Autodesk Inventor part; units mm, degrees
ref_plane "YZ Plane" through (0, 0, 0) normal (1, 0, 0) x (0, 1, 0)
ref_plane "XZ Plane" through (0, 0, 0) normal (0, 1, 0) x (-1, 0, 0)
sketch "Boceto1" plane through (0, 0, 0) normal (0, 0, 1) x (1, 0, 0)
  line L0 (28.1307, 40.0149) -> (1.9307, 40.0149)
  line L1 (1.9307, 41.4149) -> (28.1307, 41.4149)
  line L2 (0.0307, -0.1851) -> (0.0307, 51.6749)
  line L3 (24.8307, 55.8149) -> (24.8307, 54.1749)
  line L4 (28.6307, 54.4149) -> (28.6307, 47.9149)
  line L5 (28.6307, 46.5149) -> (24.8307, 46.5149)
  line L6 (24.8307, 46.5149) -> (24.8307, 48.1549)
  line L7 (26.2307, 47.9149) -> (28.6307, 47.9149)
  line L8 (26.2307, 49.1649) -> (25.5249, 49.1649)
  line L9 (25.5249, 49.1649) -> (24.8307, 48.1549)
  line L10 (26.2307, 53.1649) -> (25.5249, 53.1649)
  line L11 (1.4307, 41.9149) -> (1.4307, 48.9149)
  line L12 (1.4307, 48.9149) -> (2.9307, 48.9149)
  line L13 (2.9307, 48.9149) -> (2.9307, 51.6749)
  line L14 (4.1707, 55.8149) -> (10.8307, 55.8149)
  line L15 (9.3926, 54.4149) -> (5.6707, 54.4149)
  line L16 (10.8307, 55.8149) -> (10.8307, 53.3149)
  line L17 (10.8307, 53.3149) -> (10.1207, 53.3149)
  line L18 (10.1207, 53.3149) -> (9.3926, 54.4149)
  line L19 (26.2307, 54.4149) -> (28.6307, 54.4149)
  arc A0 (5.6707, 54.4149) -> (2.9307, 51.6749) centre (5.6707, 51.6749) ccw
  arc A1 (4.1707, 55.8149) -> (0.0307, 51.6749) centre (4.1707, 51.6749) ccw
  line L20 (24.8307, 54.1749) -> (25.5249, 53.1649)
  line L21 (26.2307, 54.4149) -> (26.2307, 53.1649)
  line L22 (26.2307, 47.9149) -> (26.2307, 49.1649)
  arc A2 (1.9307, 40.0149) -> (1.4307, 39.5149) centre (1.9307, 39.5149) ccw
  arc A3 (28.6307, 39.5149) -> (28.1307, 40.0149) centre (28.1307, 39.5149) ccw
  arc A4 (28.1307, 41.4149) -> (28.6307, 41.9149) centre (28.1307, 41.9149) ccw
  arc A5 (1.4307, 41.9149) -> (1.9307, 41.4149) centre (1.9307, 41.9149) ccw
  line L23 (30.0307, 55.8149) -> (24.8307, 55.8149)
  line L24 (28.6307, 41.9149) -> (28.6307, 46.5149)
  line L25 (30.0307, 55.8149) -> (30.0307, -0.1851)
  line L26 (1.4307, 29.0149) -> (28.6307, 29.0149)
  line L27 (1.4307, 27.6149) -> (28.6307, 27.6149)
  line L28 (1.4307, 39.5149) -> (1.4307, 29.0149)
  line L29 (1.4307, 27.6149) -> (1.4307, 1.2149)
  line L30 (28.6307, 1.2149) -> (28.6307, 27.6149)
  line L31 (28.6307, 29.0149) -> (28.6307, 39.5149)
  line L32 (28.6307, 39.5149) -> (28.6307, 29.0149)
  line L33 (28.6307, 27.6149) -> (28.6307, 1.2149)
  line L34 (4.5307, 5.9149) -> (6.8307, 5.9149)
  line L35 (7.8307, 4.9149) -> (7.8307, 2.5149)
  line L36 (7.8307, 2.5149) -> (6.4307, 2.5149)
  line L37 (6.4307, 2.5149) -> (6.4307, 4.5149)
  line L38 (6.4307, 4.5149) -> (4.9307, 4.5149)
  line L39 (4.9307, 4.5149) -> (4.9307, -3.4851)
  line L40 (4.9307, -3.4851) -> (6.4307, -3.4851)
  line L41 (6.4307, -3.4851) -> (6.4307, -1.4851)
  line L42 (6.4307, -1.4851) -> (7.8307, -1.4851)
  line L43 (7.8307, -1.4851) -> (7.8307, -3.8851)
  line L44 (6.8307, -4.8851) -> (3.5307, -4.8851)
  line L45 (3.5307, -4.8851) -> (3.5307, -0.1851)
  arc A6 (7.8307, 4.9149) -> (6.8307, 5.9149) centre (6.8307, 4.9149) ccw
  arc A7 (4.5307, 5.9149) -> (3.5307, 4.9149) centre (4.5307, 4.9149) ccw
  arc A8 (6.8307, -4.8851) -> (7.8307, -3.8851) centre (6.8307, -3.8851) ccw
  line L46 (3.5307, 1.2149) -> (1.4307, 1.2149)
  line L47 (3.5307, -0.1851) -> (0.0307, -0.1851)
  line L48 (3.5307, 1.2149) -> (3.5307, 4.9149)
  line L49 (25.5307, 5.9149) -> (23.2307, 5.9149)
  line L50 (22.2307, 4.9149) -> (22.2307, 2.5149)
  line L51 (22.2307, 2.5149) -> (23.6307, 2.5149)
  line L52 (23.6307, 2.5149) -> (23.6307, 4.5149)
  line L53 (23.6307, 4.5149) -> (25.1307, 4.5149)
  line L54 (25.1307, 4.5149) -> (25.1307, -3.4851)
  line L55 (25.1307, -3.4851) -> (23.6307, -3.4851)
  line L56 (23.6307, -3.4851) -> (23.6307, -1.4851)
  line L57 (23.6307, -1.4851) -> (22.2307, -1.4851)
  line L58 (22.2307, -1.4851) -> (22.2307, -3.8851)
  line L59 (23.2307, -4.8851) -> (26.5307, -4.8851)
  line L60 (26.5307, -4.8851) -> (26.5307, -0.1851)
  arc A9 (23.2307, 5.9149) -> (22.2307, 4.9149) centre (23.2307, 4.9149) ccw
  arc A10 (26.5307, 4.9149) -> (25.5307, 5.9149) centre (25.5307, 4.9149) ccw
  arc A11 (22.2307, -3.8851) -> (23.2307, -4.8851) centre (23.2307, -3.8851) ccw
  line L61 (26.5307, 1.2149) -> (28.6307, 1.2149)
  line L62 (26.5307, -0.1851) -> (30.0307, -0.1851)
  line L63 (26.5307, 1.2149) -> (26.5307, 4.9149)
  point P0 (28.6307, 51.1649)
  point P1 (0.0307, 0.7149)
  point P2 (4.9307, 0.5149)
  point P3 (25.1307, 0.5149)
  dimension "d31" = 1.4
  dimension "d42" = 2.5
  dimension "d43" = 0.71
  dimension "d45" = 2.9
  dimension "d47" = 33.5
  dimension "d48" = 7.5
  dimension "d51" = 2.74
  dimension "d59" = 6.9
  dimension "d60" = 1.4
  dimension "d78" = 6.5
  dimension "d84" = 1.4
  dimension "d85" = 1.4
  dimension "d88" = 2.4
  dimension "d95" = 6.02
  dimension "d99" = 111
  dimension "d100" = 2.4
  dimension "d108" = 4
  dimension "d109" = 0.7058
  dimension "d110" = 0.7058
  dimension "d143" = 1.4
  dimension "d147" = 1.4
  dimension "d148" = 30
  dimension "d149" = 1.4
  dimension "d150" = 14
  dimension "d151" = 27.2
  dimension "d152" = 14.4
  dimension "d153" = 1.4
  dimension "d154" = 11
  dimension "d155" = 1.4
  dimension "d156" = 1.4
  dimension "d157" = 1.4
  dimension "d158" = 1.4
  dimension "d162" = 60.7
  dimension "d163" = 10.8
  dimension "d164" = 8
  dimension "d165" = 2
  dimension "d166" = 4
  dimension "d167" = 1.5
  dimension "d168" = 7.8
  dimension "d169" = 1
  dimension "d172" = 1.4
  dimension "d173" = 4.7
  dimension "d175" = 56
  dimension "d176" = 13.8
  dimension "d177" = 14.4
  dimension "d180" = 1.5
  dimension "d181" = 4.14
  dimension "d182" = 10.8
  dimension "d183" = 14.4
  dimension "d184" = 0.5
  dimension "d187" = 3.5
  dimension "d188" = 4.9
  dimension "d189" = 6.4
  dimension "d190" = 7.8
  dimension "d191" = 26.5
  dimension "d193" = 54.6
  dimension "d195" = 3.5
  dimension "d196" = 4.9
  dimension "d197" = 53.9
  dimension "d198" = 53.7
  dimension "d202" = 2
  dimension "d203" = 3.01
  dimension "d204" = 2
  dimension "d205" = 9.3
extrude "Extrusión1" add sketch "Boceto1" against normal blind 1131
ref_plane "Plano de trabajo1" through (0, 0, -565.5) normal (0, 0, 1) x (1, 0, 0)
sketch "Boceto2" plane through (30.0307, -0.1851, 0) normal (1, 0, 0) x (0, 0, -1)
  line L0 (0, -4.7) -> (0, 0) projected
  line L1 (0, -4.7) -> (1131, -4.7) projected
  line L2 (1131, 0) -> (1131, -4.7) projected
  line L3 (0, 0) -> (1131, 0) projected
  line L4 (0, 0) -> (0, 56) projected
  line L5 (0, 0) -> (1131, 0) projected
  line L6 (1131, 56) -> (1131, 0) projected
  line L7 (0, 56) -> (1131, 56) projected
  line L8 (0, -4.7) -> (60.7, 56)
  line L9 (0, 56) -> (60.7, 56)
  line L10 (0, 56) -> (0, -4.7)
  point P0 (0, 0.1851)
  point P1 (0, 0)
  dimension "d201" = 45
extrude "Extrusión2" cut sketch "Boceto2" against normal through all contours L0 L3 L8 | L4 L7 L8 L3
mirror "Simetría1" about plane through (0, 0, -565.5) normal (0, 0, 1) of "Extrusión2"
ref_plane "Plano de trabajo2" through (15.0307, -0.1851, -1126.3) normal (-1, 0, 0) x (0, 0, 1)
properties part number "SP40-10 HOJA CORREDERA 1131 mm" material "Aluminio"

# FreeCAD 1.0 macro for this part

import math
import FreeCAD as App
import Part
import Sketcher

V = App.Vector
Q = App.Units.Quantity


def add_polygon(sketch, points):
    """Adds a closed chain of lines whose ends are joined by coincident constraints."""
    first, n = sketch.GeometryCount, len(points)
    for a, b in zip(points, points[1:] + points[:1]):
        sketch.addGeometry(Part.LineSegment(App.Vector(*a, 0), App.Vector(*b, 0)), False)
    for i in range(n):
        sketch.addConstraint(Sketcher.Constraint("Coincident", first + i, 2, first + (i + 1) % n, 1))

doc = App.newDocument("Part")
body = doc.addObject("PartDesign::Body", "Body")

sketch1 = body.newObject("Sketcher::SketchObject", "Sketch")
sketch1.AttachmentSupport = (doc.getObject("XY_Plane"), [""])
sketch1.MapMode = "FlatFace"
sketch1.addGeometry([
    Part.LineSegment(V(28.1, 41.4, 0), V(1.9, 41.4, 0)),
    Part.ArcOfCircle(Part.Circle(V(1.9, 41.9, 0), V(0, 0, 1), 0.5), math.radians(180), math.radians(270)),
    Part.LineSegment(V(1.4, 41.9, 0), V(1.4, 48.9, 0)),
    Part.LineSegment(V(1.4, 48.9, 0), V(2.9, 48.9, 0)),
    Part.LineSegment(V(2.9, 48.9, 0), V(2.9, 51.7, 0)),
    Part.ArcOfCircle(Part.Circle(V(5.7, 51.7, 0), V(0, 0, 1), 2.7), math.radians(90), math.radians(180)),
    Part.LineSegment(V(5.7, 54.4, 0), V(9.4, 54.4, 0)),
    Part.LineSegment(V(9.4, 54.4, 0), V(10.1, 53.3, 0)),
    Part.LineSegment(V(10.1, 53.3, 0), V(10.8, 53.3, 0)),
    Part.LineSegment(V(10.8, 53.3, 0), V(10.8, 55.8, 0)),
    Part.LineSegment(V(10.8, 55.8, 0), V(4.2, 55.8, 0)),
    Part.ArcOfCircle(Part.Circle(V(4.2, 51.7, 0), V(0, 0, 1), 4.1), math.radians(90), math.radians(180)),
    Part.LineSegment(V(0, 51.7, 0), V(0, -0.2, 0)),
    Part.LineSegment(V(0, -0.2, 0), V(3.5, -0.2, 0)),
    Part.LineSegment(V(3.5, -0.2, 0), V(3.5, -4.9, 0)),
    Part.LineSegment(V(3.5, -4.9, 0), V(6.8, -4.9, 0)),
    Part.ArcOfCircle(Part.Circle(V(6.8, -3.9, 0), V(0, 0, 1), 1), math.radians(-90), math.radians(0)),
    Part.LineSegment(V(7.8, -3.9, 0), V(7.8, -1.5, 0)),
    Part.LineSegment(V(7.8, -1.5, 0), V(6.4, -1.5, 0)),
    Part.LineSegment(V(6.4, -1.5, 0), V(6.4, -3.5, 0)),
    Part.LineSegment(V(6.4, -3.5, 0), V(4.9, -3.5, 0)),
    Part.LineSegment(V(4.9, -3.5, 0), V(4.9, 4.5, 0)),
    Part.LineSegment(V(4.9, 4.5, 0), V(6.4, 4.5, 0)),
    Part.LineSegment(V(6.4, 4.5, 0), V(6.4, 2.5, 0)),
    Part.LineSegment(V(6.4, 2.5, 0), V(7.8, 2.5, 0)),
    Part.LineSegment(V(7.8, 2.5, 0), V(7.8, 4.9, 0)),
    Part.ArcOfCircle(Part.Circle(V(6.8, 4.9, 0), V(0, 0, 1), 1), math.radians(0), math.radians(90)),
    Part.LineSegment(V(6.8, 5.9, 0), V(4.5, 5.9, 0)),
    Part.ArcOfCircle(Part.Circle(V(4.5, 4.9, 0), V(0, 0, 1), 1), math.radians(90), math.radians(180)),
    Part.LineSegment(V(3.5, 4.9, 0), V(3.5, 1.2, 0)),
    Part.LineSegment(V(3.5, 1.2, 0), V(1.4, 1.2, 0)),
    Part.LineSegment(V(1.4, 1.2, 0), V(1.4, 27.6, 0)),
    Part.LineSegment(V(1.4, 27.6, 0), V(28.6, 27.6, 0)),
    Part.LineSegment(V(28.6, 27.6, 0), V(28.6, 1.2, 0)),
    Part.LineSegment(V(28.6, 1.2, 0), V(26.5, 1.2, 0)),
    Part.LineSegment(V(26.5, 1.2, 0), V(26.5, 4.9, 0)),
    Part.ArcOfCircle(Part.Circle(V(25.5, 4.9, 0), V(0, 0, 1), 1), math.radians(0), math.radians(90)),
    Part.LineSegment(V(25.5, 5.9, 0), V(23.2, 5.9, 0)),
    Part.ArcOfCircle(Part.Circle(V(23.2, 4.9, 0), V(0, 0, 1), 1), math.radians(90), math.radians(180)),
    Part.LineSegment(V(22.2, 4.9, 0), V(22.2, 2.5, 0)),
    Part.LineSegment(V(22.2, 2.5, 0), V(23.6, 2.5, 0)),
    Part.LineSegment(V(23.6, 2.5, 0), V(23.6, 4.5, 0)),
    Part.LineSegment(V(23.6, 4.5, 0), V(25.1, 4.5, 0)),
    Part.LineSegment(V(25.1, 4.5, 0), V(25.1, -3.5, 0)),
    Part.LineSegment(V(25.1, -3.5, 0), V(23.6, -3.5, 0)),
    Part.LineSegment(V(23.6, -3.5, 0), V(23.6, -1.5, 0)),
    Part.LineSegment(V(23.6, -1.5, 0), V(22.2, -1.5, 0)),
    Part.LineSegment(V(22.2, -1.5, 0), V(22.2, -3.9, 0)),
    Part.ArcOfCircle(Part.Circle(V(23.2, -3.9, 0), V(0, 0, 1), 1), math.radians(180), math.radians(270)),
    Part.LineSegment(V(23.2, -4.9, 0), V(26.5, -4.9, 0)),
    Part.LineSegment(V(26.5, -4.9, 0), V(26.5, -0.2, 0)),
    Part.LineSegment(V(26.5, -0.2, 0), V(30, -0.2, 0)),
    Part.LineSegment(V(30, -0.2, 0), V(30, 55.8, 0)),
    Part.LineSegment(V(30, 55.8, 0), V(24.8, 55.8, 0)),
    Part.LineSegment(V(24.8, 55.8, 0), V(24.8, 54.2, 0)),
    Part.LineSegment(V(24.8, 54.2, 0), V(25.5, 53.2, 0)),
    Part.LineSegment(V(25.5, 53.2, 0), V(26.2, 53.2, 0)),
    Part.LineSegment(V(26.2, 53.2, 0), V(26.2, 54.4, 0)),
    Part.LineSegment(V(26.2, 54.4, 0), V(28.6, 54.4, 0)),
    Part.LineSegment(V(28.6, 54.4, 0), V(28.6, 47.9, 0)),
    Part.LineSegment(V(28.6, 47.9, 0), V(26.2, 47.9, 0)),
    Part.LineSegment(V(26.2, 47.9, 0), V(26.2, 49.2, 0)),
    Part.LineSegment(V(26.2, 49.2, 0), V(25.5, 49.2, 0)),
    Part.LineSegment(V(25.5, 49.2, 0), V(24.8, 48.2, 0)),
    Part.LineSegment(V(24.8, 48.2, 0), V(24.8, 46.5, 0)),
    Part.LineSegment(V(24.8, 46.5, 0), V(28.6, 46.5, 0)),
    Part.LineSegment(V(28.6, 46.5, 0), V(28.6, 41.9, 0)),
    Part.ArcOfCircle(Part.Circle(V(28.1, 41.9, 0), V(0, 0, 1), 0.5), math.radians(-90), math.radians(0)),
    Part.LineSegment(V(1.9, 40, 0), V(28.1, 40, 0)),
    Part.ArcOfCircle(Part.Circle(V(28.1, 39.5, 0), V(0, 0, 1), 0.5), math.radians(0), math.radians(90)),
    Part.LineSegment(V(28.6, 39.5, 0), V(28.6, 29, 0)),
    Part.LineSegment(V(28.6, 29, 0), V(1.4, 29, 0)),
    Part.LineSegment(V(1.4, 29, 0), V(1.4, 39.5, 0)),
    Part.ArcOfCircle(Part.Circle(V(1.9, 39.5, 0), V(0, 0, 1), 0.5), math.radians(90), math.radians(180)),
], False)
sketch1.addConstraint([
    Sketcher.Constraint("Tangent", 0, 2, 1, 2),
    Sketcher.Constraint("Tangent", 1, 1, 2, 1),
    Sketcher.Constraint("Coincident", 2, 2, 3, 1),
    Sketcher.Constraint("Coincident", 3, 2, 4, 1),
    Sketcher.Constraint("Tangent", 4, 2, 5, 2),
    Sketcher.Constraint("Tangent", 5, 1, 6, 1),
    Sketcher.Constraint("Coincident", 6, 2, 7, 1),
    Sketcher.Constraint("Coincident", 7, 2, 8, 1),
    Sketcher.Constraint("Coincident", 8, 2, 9, 1),
    Sketcher.Constraint("Coincident", 9, 2, 10, 1),
    Sketcher.Constraint("Tangent", 10, 2, 11, 1),
    Sketcher.Constraint("Tangent", 11, 2, 12, 1),
    Sketcher.Constraint("Coincident", 12, 2, 13, 1),
    Sketcher.Constraint("Coincident", 13, 2, 14, 1),
    Sketcher.Constraint("Coincident", 14, 2, 15, 1),
    Sketcher.Constraint("Tangent", 15, 2, 16, 1),
    Sketcher.Constraint("Tangent", 16, 2, 17, 1),
    Sketcher.Constraint("Coincident", 17, 2, 18, 1),
    Sketcher.Constraint("Coincident", 18, 2, 19, 1),
    Sketcher.Constraint("Coincident", 19, 2, 20, 1),
    Sketcher.Constraint("Coincident", 20, 2, 21, 1),
    Sketcher.Constraint("Coincident", 21, 2, 22, 1),
    Sketcher.Constraint("Coincident", 22, 2, 23, 1),
    Sketcher.Constraint("Coincident", 23, 2, 24, 1),
    Sketcher.Constraint("Coincident", 24, 2, 25, 1),
    Sketcher.Constraint("Tangent", 25, 2, 26, 1),
    Sketcher.Constraint("Tangent", 26, 2, 27, 1),
    Sketcher.Constraint("Tangent", 27, 2, 28, 1),
    Sketcher.Constraint("Tangent", 28, 2, 29, 1),
    Sketcher.Constraint("Coincident", 29, 2, 30, 1),
    Sketcher.Constraint("Coincident", 30, 2, 31, 1),
    Sketcher.Constraint("Coincident", 31, 2, 32, 1),
    Sketcher.Constraint("Coincident", 32, 2, 33, 1),
    Sketcher.Constraint("Coincident", 33, 2, 34, 1),
    Sketcher.Constraint("Coincident", 34, 2, 35, 1),
    Sketcher.Constraint("Tangent", 35, 2, 36, 1),
    Sketcher.Constraint("Tangent", 36, 2, 37, 1),
    Sketcher.Constraint("Tangent", 37, 2, 38, 1),
    Sketcher.Constraint("Tangent", 38, 2, 39, 1),
    Sketcher.Constraint("Coincident", 39, 2, 40, 1),
    Sketcher.Constraint("Coincident", 40, 2, 41, 1),
    Sketcher.Constraint("Coincident", 41, 2, 42, 1),
    Sketcher.Constraint("Coincident", 42, 2, 43, 1),
    Sketcher.Constraint("Coincident", 43, 2, 44, 1),
    Sketcher.Constraint("Coincident", 44, 2, 45, 1),
    Sketcher.Constraint("Coincident", 45, 2, 46, 1),
    Sketcher.Constraint("Coincident", 46, 2, 47, 1),
    Sketcher.Constraint("Tangent", 47, 2, 48, 1),
    Sketcher.Constraint("Tangent", 48, 2, 49, 1),
    Sketcher.Constraint("Coincident", 49, 2, 50, 1),
    Sketcher.Constraint("Coincident", 50, 2, 51, 1),
    Sketcher.Constraint("Coincident", 51, 2, 52, 1),
    Sketcher.Constraint("Coincident", 52, 2, 53, 1),
    Sketcher.Constraint("Coincident", 53, 2, 54, 1),
    Sketcher.Constraint("Coincident", 54, 2, 55, 1),
    Sketcher.Constraint("Coincident", 55, 2, 56, 1),
    Sketcher.Constraint("Coincident", 56, 2, 57, 1),
    Sketcher.Constraint("Coincident", 57, 2, 58, 1),
    Sketcher.Constraint("Coincident", 58, 2, 59, 1),
    Sketcher.Constraint("Coincident", 59, 2, 60, 1),
    Sketcher.Constraint("Coincident", 60, 2, 61, 1),
    Sketcher.Constraint("Coincident", 61, 2, 62, 1),
    Sketcher.Constraint("Coincident", 62, 2, 63, 1),
    Sketcher.Constraint("Coincident", 63, 2, 64, 1),
    Sketcher.Constraint("Coincident", 64, 2, 65, 1),
    Sketcher.Constraint("Coincident", 65, 2, 66, 1),
    Sketcher.Constraint("Tangent", 66, 2, 67, 2),
    Sketcher.Constraint("Tangent", 67, 1, 0, 1),
    Sketcher.Constraint("Tangent", 68, 2, 69, 2),
    Sketcher.Constraint("Tangent", 69, 1, 70, 1),
    Sketcher.Constraint("Coincident", 70, 2, 71, 1),
    Sketcher.Constraint("Coincident", 71, 2, 72, 1),
    Sketcher.Constraint("Tangent", 72, 2, 73, 2),
    Sketcher.Constraint("Tangent", 73, 1, 68, 1),
    Sketcher.Constraint("Horizontal", 0),
    Sketcher.Constraint("Vertical", 2),
    Sketcher.Constraint("Horizontal", 3),
    Sketcher.Constraint("Vertical", 4),
    Sketcher.Constraint("Horizontal", 6),
    Sketcher.Constraint("Horizontal", 8),
    Sketcher.Constraint("Vertical", 9),
    Sketcher.Constraint("Horizontal", 10),
    Sketcher.Constraint("Vertical", 12),
    Sketcher.Constraint("Horizontal", 13),
    Sketcher.Constraint("Vertical", 14),
    Sketcher.Constraint("Horizontal", 15),
    Sketcher.Constraint("Vertical", 17),
    Sketcher.Constraint("Horizontal", 18),
    Sketcher.Constraint("Vertical", 19),
    Sketcher.Constraint("Horizontal", 20),
    Sketcher.Constraint("Vertical", 21),
    Sketcher.Constraint("Horizontal", 22),
    Sketcher.Constraint("Vertical", 23),
    Sketcher.Constraint("Horizontal", 24),
    Sketcher.Constraint("Vertical", 25),
    Sketcher.Constraint("Horizontal", 27),
    Sketcher.Constraint("Vertical", 29),
    Sketcher.Constraint("Horizontal", 30),
    Sketcher.Constraint("Vertical", 31),
    Sketcher.Constraint("Horizontal", 32),
    Sketcher.Constraint("Vertical", 33),
    Sketcher.Constraint("Horizontal", 34),
    Sketcher.Constraint("Vertical", 35),
    Sketcher.Constraint("Horizontal", 37),
    Sketcher.Constraint("Vertical", 39),
    Sketcher.Constraint("Horizontal", 40),
    Sketcher.Constraint("Vertical", 41),
    Sketcher.Constraint("Horizontal", 42),
    Sketcher.Constraint("Vertical", 43),
    Sketcher.Constraint("Horizontal", 44),
    Sketcher.Constraint("Vertical", 45),
    Sketcher.Constraint("Horizontal", 46),
    Sketcher.Constraint("Vertical", 47),
    Sketcher.Constraint("Horizontal", 49),
    Sketcher.Constraint("Vertical", 50),
    Sketcher.Constraint("Horizontal", 51),
    Sketcher.Constraint("Vertical", 52),
    Sketcher.Constraint("Horizontal", 53),
    Sketcher.Constraint("Vertical", 54),
    Sketcher.Constraint("Horizontal", 56),
    Sketcher.Constraint("Vertical", 57),
    Sketcher.Constraint("Horizontal", 58),
    Sketcher.Constraint("Vertical", 59),
    Sketcher.Constraint("Horizontal", 60),
    Sketcher.Constraint("Vertical", 61),
    Sketcher.Constraint("Horizontal", 62),
    Sketcher.Constraint("Vertical", 64),
    Sketcher.Constraint("Horizontal", 65),
    Sketcher.Constraint("Vertical", 66),
    Sketcher.Constraint("Horizontal", 68),
    Sketcher.Constraint("Vertical", 70),
    Sketcher.Constraint("Horizontal", 71),
    Sketcher.Constraint("Vertical", 72),
    Sketcher.Constraint("Equal", 16, 26),
    Sketcher.Constraint("Equal", 26, 28),
    Sketcher.Constraint("Equal", 28, 36),
    Sketcher.Constraint("Equal", 36, 38),
    Sketcher.Constraint("Equal", 38, 48),
    Sketcher.Constraint("Equal", 1, 67),
    Sketcher.Constraint("Equal", 67, 69),
    Sketcher.Constraint("Equal", 69, 73),
    Sketcher.Constraint("Horizontal", 5, 3, 11, 3),
    Sketcher.Constraint("Horizontal", 28, 3, 36, 3),
    Sketcher.Constraint("Horizontal", 16, 3, 48, 3),
    Sketcher.Constraint("Horizontal", 30, 2, 33, 2),
    Sketcher.Constraint("Horizontal", 24, 2, 39, 2),
    Sketcher.Constraint("Horizontal", 22, 2, 41, 2),
    Sketcher.Constraint("Horizontal", 20, 2, 43, 2),
    Sketcher.Constraint("Horizontal", 18, 2, 45, 2),
    Sketcher.Constraint("Horizontal", 13, 2, 50, 2),
    Sketcher.Constraint("Horizontal", 10, 2, 52, 2),
    Sketcher.Constraint("Horizontal", 6, 2, 57, 2),
    Sketcher.Constraint("Vertical", 16, 3, 26, 3),
    Sketcher.Constraint("Vertical", 38, 3, 48, 3),
    Sketcher.Constraint("Vertical", 67, 3, 69, 3),
    Sketcher.Constraint("Vertical", 1, 3, 73, 3),
    Sketcher.Constraint("Vertical", 19, 2, 22, 2),
    Sketcher.Constraint("Vertical", 14, 2, 28, 2),
    Sketcher.Constraint("Vertical", 2, 2, 30, 2),
    Sketcher.Constraint("Vertical", 41, 2, 44, 2),
    Sketcher.Constraint("Vertical", 35, 2, 49, 2),
    Sketcher.Constraint("Vertical", 33, 2, 58, 2),
    Sketcher.Constraint("Vertical", 57, 2, 60, 2),
    Sketcher.Constraint("Vertical", 55, 2, 62, 2),
    Sketcher.Constraint("Vertical", 54, 2, 63, 2),
    Sketcher.Constraint("Vertical", 59, 2, 65, 2),
    Sketcher.Constraint("Equal", 3, 20),
    Sketcher.Constraint("Equal", 30, 34),
    Sketcher.Constraint("Equal", 27, 37),
    Sketcher.Constraint("Equal", 24, 40),
    Sketcher.Constraint("Equal", 22, 42),
    Sketcher.Constraint("Equal", 13, 51),
    Sketcher.Constraint("Equal", 60, 17),
    Sketcher.Constraint("Equal", 19, 23),
    Sketcher.Constraint("Equal", 17, 25),
    Sketcher.Constraint("Equal", 57, 61),
    Sketcher.Constraint("Equal", 54, 64),
    Sketcher.Constraint("Equal", 55, 63),
    Sketcher.Constraint("Radius", 16, Q("1 mm")),
    Sketcher.Constraint("Radius", 1, Q("0.5 mm")),
    Sketcher.Constraint("DistanceY", 19, 2, 19, 1, Q("2 mm")),
    Sketcher.Constraint("DistanceY", 21, 1, 21, 2, Q("8 mm")),
    Sketcher.Constraint("DistanceY", 52, 1, 52, 2, Q("56 mm")),
    Sketcher.Constraint("Radius", 5, Q("2.74 mm")),
    Sketcher.Constraint("Radius", 11, Q("4.14 mm")),
    Sketcher.Constraint("DistanceX", 3, 1, 3, 2, Q("1.5 mm")),
    Sketcher.Constraint("DistanceX", 13, 1, 13, 2, Q("3.5 mm")),
    Sketcher.Constraint("DistanceX", 18, 2, 18, 1, Q("1.4 mm")),
    Sketcher.Constraint("DistanceX", 32, 1, 32, 2, Q("27.2 mm")),
    Sketcher.Constraint("DistanceX", 58, 1, 58, 2, Q("2.4 mm")),
    Sketcher.Constraint("DistanceY", 9, 1, 9, 2, Q("2.5 mm")),
    Sketcher.Constraint("DistanceY", 14, 2, 14, 1, Q("4.7 mm")),
    Sketcher.Constraint("DistanceY", 59, 2, 59, 1, Q("6.5 mm")),
    Sketcher.Constraint("DistanceX", 8, 1, 8, 2, Q("0.71 mm")),
    Sketcher.Constraint("DistanceY", 2, 1, 2, 2, Q("7 mm")),
    Sketcher.Constraint("DistanceX", 15, 1, 15, 2, Q("3.3 mm")),
    Sketcher.Constraint("DistanceX", 30, 2, 30, 1, Q("2.1 mm")),
    Sketcher.Constraint("DistanceX", 53, 2, 53, 1, Q("5.2 mm")),
    Sketcher.Constraint("DistanceX", 56, 1, 56, 2, Q("0.7058 mm")),
    Sketcher.Constraint("DistanceY", 29, 2, 29, 1, Q("3.7 mm")),
    Sketcher.Constraint("DistanceY", 31, 1, 31, 2, Q("26.4 mm")),
    Sketcher.Constraint("DistanceY", 66, 2, 66, 1, Q("4.6 mm")),
    Sketcher.Constraint("DistanceY", 70, 2, 70, 1, Q("10.5 mm")),
    Sketcher.Constraint("Angle", 7, Q("-56.499 deg")),
    Sketcher.Constraint("DistanceX", 10, 2, 10, 1, Q("6.66 mm")),
    Sketcher.Constraint("DistanceY", 54, 2, 54, 1, Q("1.64 mm")),
    Sketcher.Constraint("DistanceY", 57, 1, 57, 2, Q("1.25 mm")),
    Sketcher.Constraint("DistanceY", -1, 1, 1, 3, Q("41.915 mm")),
    Sketcher.Constraint("DistanceY", -1, 1, 69, 3, Q("39.515 mm")),
    Sketcher.Constraint("DistanceX", -1, 1, 55, 2, Q("25.525 mm")),
])
pad1 = body.newObject("PartDesign::Pad", "Pad")
pad1.Profile = sketch1
pad1.Length = 1131
pad1.Reversed = True

sketch2 = body.newObject("Sketcher::SketchObject", "Sketch001")
sketch2.AttachmentSupport = (doc.getObject("YZ_Plane"), [""])
sketch2.MapMode = "FlatFace"
sketch2.AttachmentOffset = App.Placement(V(0, 0, 30.0307), App.Rotation())
add_polygon(sketch2, [(-5, 0), (56, -61), (56, 0)])
sketch2.addConstraint([
    Sketcher.Constraint("Vertical", 1),
    Sketcher.Constraint("Horizontal", 2),
    Sketcher.Constraint("PointOnObject", 1, 2, -1),
    Sketcher.Constraint("Equal", 2, 1),
    Sketcher.Constraint("DistanceX", 2, 2, 2, 1, Q("60.7 mm")),
    Sketcher.Constraint("DistanceX", -1, 1, 0, 2, Q("55.815 mm")),
])
pocket1 = body.newObject("PartDesign::Pocket", "Pocket")
pocket1.Profile = sketch2
pocket1.Type = "ThroughAll"
doc.recompute()

datumplane = body.newObject("PartDesign::Plane", "DatumPlane")
datumplane.AttachmentSupport = (doc.getObject("XY_Plane"), [""])
datumplane.MapMode = "FlatFace"
datumplane.AttachmentOffset = App.Placement(V(0, 0, -565.5), App.Rotation())
mirrored = body.newObject("PartDesign::Mirrored", "Mirrored")
mirrored.Originals = [pocket1]
mirrored.MirrorPlane = (datumplane, [""])
body.Tip = mirrored

doc.recompute()
